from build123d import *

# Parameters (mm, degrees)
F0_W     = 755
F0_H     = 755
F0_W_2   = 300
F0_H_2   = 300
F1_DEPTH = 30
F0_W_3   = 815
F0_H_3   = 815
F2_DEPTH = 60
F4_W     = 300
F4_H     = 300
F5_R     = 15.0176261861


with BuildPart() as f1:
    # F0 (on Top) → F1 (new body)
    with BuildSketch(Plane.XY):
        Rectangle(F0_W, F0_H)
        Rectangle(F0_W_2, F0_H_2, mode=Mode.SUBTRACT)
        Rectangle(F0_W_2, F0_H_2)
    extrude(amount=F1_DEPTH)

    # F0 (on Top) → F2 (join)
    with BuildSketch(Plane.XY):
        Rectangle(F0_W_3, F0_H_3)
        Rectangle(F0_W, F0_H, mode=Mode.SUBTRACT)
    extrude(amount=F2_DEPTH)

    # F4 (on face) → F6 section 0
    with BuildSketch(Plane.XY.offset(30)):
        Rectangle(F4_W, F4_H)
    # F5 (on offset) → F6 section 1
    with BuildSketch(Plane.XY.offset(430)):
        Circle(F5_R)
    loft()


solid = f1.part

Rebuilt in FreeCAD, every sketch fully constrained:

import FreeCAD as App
import Part
import Sketcher
from FreeCAD import Vector
Q = App.Units.Quantity

doc = App.newDocument("Part")
body = doc.addObject("PartDesign::Body", "Body")

# Sketch on XY plane
sketch1 = doc.addObject("Sketcher::SketchObject", "Sketch")
body.addObject(sketch1)
sketch1.AttachmentSupport = (doc.XY_Plane, [""])
sketch1.MapMode = "FlatFace"
sketch1.addGeometry(Part.LineSegment(Vector(-378, 378, 0), Vector(-378, -378, 0)), False)
sketch1.addGeometry(Part.LineSegment(Vector(-378, -378, 0), Vector(378, -378, 0)), False)
sketch1.addGeometry(Part.LineSegment(Vector(378, -378, 0), Vector(378, 378, 0)), False)
sketch1.addGeometry(Part.LineSegment(Vector(378, 378, 0), Vector(-378, 378, 0)), False)
sketch1.addConstraint(Sketcher.Constraint("Coincident", 0, 2, 1, 1))
sketch1.addConstraint(Sketcher.Constraint("Coincident", 1, 2, 2, 1))
sketch1.addConstraint(Sketcher.Constraint("Coincident", 2, 2, 3, 1))
sketch1.addConstraint(Sketcher.Constraint("Coincident", 3, 2, 0, 1))
sketch1.addConstraint(Sketcher.Constraint("Vertical", 0))
sketch1.addConstraint(Sketcher.Constraint("Horizontal", 1))
sketch1.addConstraint(Sketcher.Constraint("Vertical", 2))
sketch1.addConstraint(Sketcher.Constraint("Horizontal", 3))
sketch1.addConstraint(Sketcher.Constraint("Symmetric", 0, 2, 2, 2, -1, 1))
sketch1.addConstraint(Sketcher.Constraint("Equal", 3, 0))
sketch1.addConstraint(Sketcher.Constraint("DistanceX", 1, 1, 1, 2, Q("755 mm")))
pad1 = doc.addObject("PartDesign::Pad", "Pad")
body.addObject(pad1)
pad1.Profile = sketch1
pad1.Length = 30

# Sketch on XY plane
sketch2 = doc.addObject("Sketcher::SketchObject", "Sketch001")
body.addObject(sketch2)
sketch2.AttachmentSupport = (doc.XY_Plane, [""])
sketch2.MapMode = "FlatFace"
sketch2.addGeometry(Part.LineSegment(Vector(-408, 408, 0), Vector(-408, -408, 0)), False)
sketch2.addGeometry(Part.LineSegment(Vector(-408, -408, 0), Vector(408, -408, 0)), False)
sketch2.addGeometry(Part.LineSegment(Vector(408, -408, 0), Vector(408, 408, 0)), False)
sketch2.addGeometry(Part.LineSegment(Vector(408, 408, 0), Vector(-408, 408, 0)), False)
sketch2.addGeometry(Part.LineSegment(Vector(378, -378, 0), Vector(-378, -378, 0)), False)
sketch2.addGeometry(Part.LineSegment(Vector(-378, -378, 0), Vector(-378, 378, 0)), False)
sketch2.addGeometry(Part.LineSegment(Vector(-378, 378, 0), Vector(378, 378, 0)), False)
sketch2.addGeometry(Part.LineSegment(Vector(378, 378, 0), Vector(378, -378, 0)), False)
sketch2.addConstraint(Sketcher.Constraint("Coincident", 0, 2, 1, 1))
sketch2.addConstraint(Sketcher.Constraint("Coincident", 1, 2, 2, 1))
sketch2.addConstraint(Sketcher.Constraint("Coincident", 2, 2, 3, 1))
sketch2.addConstraint(Sketcher.Constraint("Coincident", 3, 2, 0, 1))
sketch2.addConstraint(Sketcher.Constraint("Coincident", 4, 2, 5, 1))
sketch2.addConstraint(Sketcher.Constraint("Coincident", 5, 2, 6, 1))
sketch2.addConstraint(Sketcher.Constraint("Coincident", 6, 2, 7, 1))
sketch2.addConstraint(Sketcher.Constraint("Coincident", 7, 2, 4, 1))
sketch2.addConstraint(Sketcher.Constraint("Vertical", 0))
sketch2.addConstraint(Sketcher.Constraint("Horizontal", 1))
sketch2.addConstraint(Sketcher.Constraint("Vertical", 2))
sketch2.addConstraint(Sketcher.Constraint("Horizontal", 3))
sketch2.addConstraint(Sketcher.Constraint("Horizontal", 4))
sketch2.addConstraint(Sketcher.Constraint("Vertical", 5))
sketch2.addConstraint(Sketcher.Constraint("Horizontal", 6))
sketch2.addConstraint(Sketcher.Constraint("Vertical", 7))
sketch2.addConstraint(Sketcher.Constraint("Symmetric", 0, 2, 2, 2, -1, 1))
sketch2.addConstraint(Sketcher.Constraint("Symmetric", 4, 2, 6, 2, -1, 1))
sketch2.addConstraint(Sketcher.Constraint("Equal", 3, 0))
sketch2.addConstraint(Sketcher.Constraint("Equal", 6, 5))
sketch2.addConstraint(Sketcher.Constraint("DistanceX", 1, 1, 1, 2, Q("815 mm")))
sketch2.addConstraint(Sketcher.Constraint("DistanceX", 4, 2, 4, 1, Q("755 mm")))
pad2 = doc.addObject("PartDesign::Pad", "Pad001")
body.addObject(pad2)
pad2.Profile = sketch2
pad2.Length = 60

# Sketch on XY plane
sketch3 = doc.addObject("Sketcher::SketchObject", "Sketch002")
body.addObject(sketch3)
sketch3.AttachmentSupport = (doc.XY_Plane, [""])
sketch3.MapMode = "FlatFace"
sketch3.AttachmentOffset = App.Placement(Vector(0, 0, 30), App.Rotation())
sketch3.addGeometry(Part.LineSegment(Vector(-150, 150, 0), Vector(-150, -150, 0)), False)
sketch3.addGeometry(Part.LineSegment(Vector(-150, -150, 0), Vector(150, -150, 0)), False)
sketch3.addGeometry(Part.LineSegment(Vector(150, -150, 0), Vector(150, 150, 0)), False)
sketch3.addGeometry(Part.LineSegment(Vector(150, 150, 0), Vector(-150, 150, 0)), False)
sketch3.addConstraint(Sketcher.Constraint("Coincident", 0, 2, 1, 1))
sketch3.addConstraint(Sketcher.Constraint("Coincident", 1, 2, 2, 1))
sketch3.addConstraint(Sketcher.Constraint("Coincident", 2, 2, 3, 1))
sketch3.addConstraint(Sketcher.Constraint("Coincident", 3, 2, 0, 1))
sketch3.addConstraint(Sketcher.Constraint("Vertical", 0))
sketch3.addConstraint(Sketcher.Constraint("Horizontal", 1))
sketch3.addConstraint(Sketcher.Constraint("Vertical", 2))
sketch3.addConstraint(Sketcher.Constraint("Horizontal", 3))
sketch3.addConstraint(Sketcher.Constraint("Symmetric", 0, 2, 2, 2, -1, 1))
sketch3.addConstraint(Sketcher.Constraint("Equal", 3, 0))
sketch3.addConstraint(Sketcher.Constraint("DistanceX", 1, 1, 1, 2, Q("300 mm")))

# Sketch on XY plane
sketch4 = doc.addObject("Sketcher::SketchObject", "Sketch003")
body.addObject(sketch4)
sketch4.AttachmentSupport = (doc.XY_Plane, [""])
sketch4.MapMode = "FlatFace"
sketch4.AttachmentOffset = App.Placement(Vector(0, 0, 430), App.Rotation())
sketch4.addGeometry(Part.Circle(Vector(0, 0, 0), Vector(0, 0, 1), 15), False)
sketch4.addConstraint(Sketcher.Constraint("Coincident", 0, 3, -1, 1))
sketch4.addConstraint(Sketcher.Constraint("Diameter", 0, Q("30.035252 mm")))

additiveloft = doc.addObject("PartDesign::AdditiveLoft", "AdditiveLoft")
body.addObject(additiveloft)
additiveloft.Profile = sketch3
additiveloft.Sections = [sketch4]

doc.recompute()
